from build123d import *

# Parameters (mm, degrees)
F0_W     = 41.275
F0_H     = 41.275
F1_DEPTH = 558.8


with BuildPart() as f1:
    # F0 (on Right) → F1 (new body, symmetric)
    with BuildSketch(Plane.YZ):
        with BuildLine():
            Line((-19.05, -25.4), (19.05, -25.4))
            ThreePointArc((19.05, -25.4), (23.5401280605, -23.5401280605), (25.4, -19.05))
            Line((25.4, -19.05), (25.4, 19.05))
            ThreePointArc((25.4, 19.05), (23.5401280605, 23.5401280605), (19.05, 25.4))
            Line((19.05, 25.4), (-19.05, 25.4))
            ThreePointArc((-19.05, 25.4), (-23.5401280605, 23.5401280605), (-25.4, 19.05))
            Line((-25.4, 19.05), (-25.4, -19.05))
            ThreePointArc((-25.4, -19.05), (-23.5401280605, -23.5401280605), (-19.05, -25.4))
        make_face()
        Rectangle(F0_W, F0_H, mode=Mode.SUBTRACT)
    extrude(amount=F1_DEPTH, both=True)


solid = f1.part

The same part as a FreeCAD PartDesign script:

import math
import FreeCAD as App
import Part
import Sketcher
from FreeCAD import Vector
Q = App.Units.Quantity

doc = App.newDocument("Part")
body = doc.addObject("PartDesign::Body", "Body")

sketch1 = doc.addObject("Sketcher::SketchObject", "Sketch")
body.addObject(sketch1)
sketch1.AttachmentSupport = (doc.YZ_Plane, [""])
sketch1.MapMode = "FlatFace"
sketch1.addGeometry(Part.LineSegment(Vector(-19.05, -25.4, 0), Vector(19.05, -25.4, 0)), False)
sketch1.addGeometry(Part.ArcOfCircle(Part.Circle(Vector(19.05, -19.05, 0), Vector(0, 0, 1), 6.35), math.radians(-90), math.radians(0)), False)
sketch1.addGeometry(Part.LineSegment(Vector(25.4, -19.05, 0), Vector(25.4, 19.05, 0)), False)
sketch1.addGeometry(Part.ArcOfCircle(Part.Circle(Vector(19.05, 19.05, 0), Vector(0, 0, 1), 6.35), math.radians(0), math.radians(90)), False)
sketch1.addGeometry(Part.LineSegment(Vector(19.05, 25.4, 0), Vector(-19.05, 25.4, 0)), False)
sketch1.addGeometry(Part.ArcOfCircle(Part.Circle(Vector(-19.05, 19.05, 0), Vector(0, 0, 1), 6.35), math.radians(90), math.radians(180)), False)
sketch1.addGeometry(Part.LineSegment(Vector(-25.4, 19.05, 0), Vector(-25.4, -19.05, 0)), False)
sketch1.addGeometry(Part.ArcOfCircle(Part.Circle(Vector(-19.05, -19.05, 0), Vector(0, 0, 1), 6.35), math.radians(180), math.radians(270)), False)
sketch1.addGeometry(Part.LineSegment(Vector(20.6375, -20.6375, 0), Vector(-20.6375, -20.6375, 0)), False)
sketch1.addGeometry(Part.LineSegment(Vector(-20.6375, -20.6375, 0), Vector(-20.6375, 20.6375, 0)), False)
sketch1.addGeometry(Part.LineSegment(Vector(-20.6375, 20.6375, 0), Vector(20.6375, 20.6375, 0)), False)
sketch1.addGeometry(Part.LineSegment(Vector(20.6375, 20.6375, 0), Vector(20.6375, -20.6375, 0)), False)
sketch1.addConstraint(Sketcher.Constraint("Tangent", 0, 2, 1, 1))
sketch1.addConstraint(Sketcher.Constraint("Tangent", 1, 2, 2, 1))
sketch1.addConstraint(Sketcher.Constraint("Tangent", 2, 2, 3, 1))
sketch1.addConstraint(Sketcher.Constraint("Tangent", 3, 2, 4, 1))
sketch1.addConstraint(Sketcher.Constraint("Tangent", 4, 2, 5, 1))
sketch1.addConstraint(Sketcher.Constraint("Tangent", 5, 2, 6, 1))
sketch1.addConstraint(Sketcher.Constraint("Tangent", 6, 2, 7, 1))
sketch1.addConstraint(Sketcher.Constraint("Tangent", 7, 2, 0, 1))
sketch1.addConstraint(Sketcher.Constraint("Coincident", 8, 2, 9, 1))
sketch1.addConstraint(Sketcher.Constraint("Coincident", 9, 2, 10, 1))
sketch1.addConstraint(Sketcher.Constraint("Coincident", 10, 2, 11, 1))
sketch1.addConstraint(Sketcher.Constraint("Coincident", 11, 2, 8, 1))
sketch1.addConstraint(Sketcher.Constraint("Horizontal", 0))
sketch1.addConstraint(Sketcher.Constraint("Vertical", 2))
sketch1.addConstraint(Sketcher.Constraint("Horizontal", 4))
sketch1.addConstraint(Sketcher.Constraint("Vertical", 6))
sketch1.addConstraint(Sketcher.Constraint("Horizontal", 8))
sketch1.addConstraint(Sketcher.Constraint("Vertical", 9))
sketch1.addConstraint(Sketcher.Constraint("Horizontal", 10))
sketch1.addConstraint(Sketcher.Constraint("Vertical", 11))
sketch1.addConstraint(Sketcher.Constraint("Equal", 1, 3))
sketch1.addConstraint(Sketcher.Constraint("Equal", 3, 5))
sketch1.addConstraint(Sketcher.Constraint("Equal", 5, 7))
sketch1.addConstraint(Sketcher.Constraint("Symmetric", 1, 3, 5, 3, -1, 1))
sketch1.addConstraint(Sketcher.Constraint("Symmetric", 8, 2, 10, 2, -1, 1))
sketch1.addConstraint(Sketcher.Constraint("Equal", 4, 2))
sketch1.addConstraint(Sketcher.Constraint("Equal", 10, 9))
sketch1.addConstraint(Sketcher.Constraint("Radius", 1, Q("0.25 in")))
sketch1.addConstraint(Sketcher.Constraint("DistanceX", 0, 1, 0, 2, Q("1.5 in")))
sketch1.addConstraint(Sketcher.Constraint("DistanceX", 8, 2, 8, 1, Q("1.625 in")))
pad1 = doc.addObject("PartDesign::Pad", "Pad")
body.addObject(pad1)
pad1.Profile = sketch1
pad1.Length = Q("44 in")
pad1.Midplane = True

doc.recompute()
